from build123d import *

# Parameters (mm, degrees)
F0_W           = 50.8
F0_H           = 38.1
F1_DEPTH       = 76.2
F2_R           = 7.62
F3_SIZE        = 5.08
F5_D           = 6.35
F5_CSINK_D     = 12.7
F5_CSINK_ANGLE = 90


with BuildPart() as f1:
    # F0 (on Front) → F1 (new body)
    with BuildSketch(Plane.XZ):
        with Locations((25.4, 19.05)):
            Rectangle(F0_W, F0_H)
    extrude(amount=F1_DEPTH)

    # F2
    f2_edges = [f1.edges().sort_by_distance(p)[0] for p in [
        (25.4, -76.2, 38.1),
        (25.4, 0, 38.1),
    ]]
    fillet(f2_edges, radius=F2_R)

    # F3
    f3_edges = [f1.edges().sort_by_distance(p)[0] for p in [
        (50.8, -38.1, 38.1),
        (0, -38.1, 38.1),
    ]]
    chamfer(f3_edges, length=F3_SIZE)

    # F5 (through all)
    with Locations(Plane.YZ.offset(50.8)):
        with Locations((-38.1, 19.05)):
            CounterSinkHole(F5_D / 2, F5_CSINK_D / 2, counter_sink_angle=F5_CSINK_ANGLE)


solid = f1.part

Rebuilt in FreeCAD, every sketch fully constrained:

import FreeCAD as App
import Part
import Sketcher
from FreeCAD import Vector
Q = App.Units.Quantity


def edges_at(feature, points):
    """Names of the edges that pass closest to the given points."""
    edges = feature.Shape.Edges
    near = lambda p: min(range(len(edges)), key=lambda i: edges[i].distToShape(Part.Vertex(*p))[0])
    return sorted({f"Edge{near(p) + 1}" for p in points})


def add_polygon(sketch, points):
    """Adds a closed chain of lines whose ends are joined by coincident constraints."""
    first, n = sketch.GeometryCount, len(points)
    for a, b in zip(points, points[1:] + points[:1]):
        sketch.addGeometry(Part.LineSegment(App.Vector(*a, 0), App.Vector(*b, 0)), False)
    for i in range(n):
        sketch.addConstraint(Sketcher.Constraint("Coincident", first + i, 2, first + (i + 1) % n, 1))

doc = App.newDocument("Part")
body = doc.addObject("PartDesign::Body", "Body")

# Sketch on XZ plane
sketch1 = body.newObject("Sketcher::SketchObject", "Sketch")
sketch1.AttachmentSupport = (doc.getObject("XZ_Plane"), [""])
sketch1.MapMode = "FlatFace"
add_polygon(sketch1, [(0, 38), (0, 0), (51, 0), (51, 38)])  # lines 0-3
sketch1.addConstraint([
    Sketcher.Constraint("Vertical", 0),
    Sketcher.Constraint("Horizontal", 1),
    Sketcher.Constraint("Vertical", 2),
    Sketcher.Constraint("Horizontal", 3),
    Sketcher.Constraint("Coincident", 0, 2, -1, 1),
    Sketcher.Constraint("DistanceX", 1, 1, 1, 2, Q("2 in")),
    Sketcher.Constraint("DistanceY", 0, 2, 0, 1, Q("1.5 in")),
])
pad1 = body.newObject("PartDesign::Pad", "Pad")
pad1.Profile = sketch1
pad1.Length = Q("3 in")
doc.recompute()

fillet = body.newObject("PartDesign::Fillet", "Fillet")
fillet.Base = (pad1, edges_at(pad1, [(25.4, -76.2, 38.1), (25.4, 0, 38.1)]))
fillet.Radius = Q("0.3 in")
doc.recompute()

chamfer = body.newObject("PartDesign::Chamfer", "Chamfer")
chamfer.Base = (fillet, edges_at(fillet, [(50.8, -38.1, 38.1), (0, -38.1, 38.1)]))
chamfer.Size = Q("0.2 in")

# Sketch on YZ plane
sketch2 = body.newObject("Sketcher::SketchObject", "Sketch001")
sketch2.AttachmentSupport = (doc.getObject("YZ_Plane"), [""])
sketch2.MapMode = "FlatFace"
sketch2.AttachmentOffset = App.Placement(Vector(0, 0, 2 * 25.4), App.Rotation())
sketch2.addGeometry(Part.Circle(Vector(-38.1, 19.1, 0), Vector(0, 0, 1), 3.2), False)
sketch2.addConstraint([
    Sketcher.Constraint("Diameter", 0, Q("0.25 in")),
    Sketcher.Constraint("DistanceX", 0, 3, -1, 1, Q("1.5 in")),
    Sketcher.Constraint("DistanceY", -1, 1, 0, 3, Q("0.75 in")),
])
doc.recompute()
hole = body.newObject("PartDesign::Hole", "Hole")
hole.Profile = sketch2
hole.ThreadType = "None"
hole.Diameter = Q("0.25 in")
hole.DepthType = "ThroughAll"
hole.HoleCutType = "Countersink"
hole.HoleCutDiameter = Q("0.5 in")
hole.HoleCutCountersinkAngle = 90

doc.recompute()
